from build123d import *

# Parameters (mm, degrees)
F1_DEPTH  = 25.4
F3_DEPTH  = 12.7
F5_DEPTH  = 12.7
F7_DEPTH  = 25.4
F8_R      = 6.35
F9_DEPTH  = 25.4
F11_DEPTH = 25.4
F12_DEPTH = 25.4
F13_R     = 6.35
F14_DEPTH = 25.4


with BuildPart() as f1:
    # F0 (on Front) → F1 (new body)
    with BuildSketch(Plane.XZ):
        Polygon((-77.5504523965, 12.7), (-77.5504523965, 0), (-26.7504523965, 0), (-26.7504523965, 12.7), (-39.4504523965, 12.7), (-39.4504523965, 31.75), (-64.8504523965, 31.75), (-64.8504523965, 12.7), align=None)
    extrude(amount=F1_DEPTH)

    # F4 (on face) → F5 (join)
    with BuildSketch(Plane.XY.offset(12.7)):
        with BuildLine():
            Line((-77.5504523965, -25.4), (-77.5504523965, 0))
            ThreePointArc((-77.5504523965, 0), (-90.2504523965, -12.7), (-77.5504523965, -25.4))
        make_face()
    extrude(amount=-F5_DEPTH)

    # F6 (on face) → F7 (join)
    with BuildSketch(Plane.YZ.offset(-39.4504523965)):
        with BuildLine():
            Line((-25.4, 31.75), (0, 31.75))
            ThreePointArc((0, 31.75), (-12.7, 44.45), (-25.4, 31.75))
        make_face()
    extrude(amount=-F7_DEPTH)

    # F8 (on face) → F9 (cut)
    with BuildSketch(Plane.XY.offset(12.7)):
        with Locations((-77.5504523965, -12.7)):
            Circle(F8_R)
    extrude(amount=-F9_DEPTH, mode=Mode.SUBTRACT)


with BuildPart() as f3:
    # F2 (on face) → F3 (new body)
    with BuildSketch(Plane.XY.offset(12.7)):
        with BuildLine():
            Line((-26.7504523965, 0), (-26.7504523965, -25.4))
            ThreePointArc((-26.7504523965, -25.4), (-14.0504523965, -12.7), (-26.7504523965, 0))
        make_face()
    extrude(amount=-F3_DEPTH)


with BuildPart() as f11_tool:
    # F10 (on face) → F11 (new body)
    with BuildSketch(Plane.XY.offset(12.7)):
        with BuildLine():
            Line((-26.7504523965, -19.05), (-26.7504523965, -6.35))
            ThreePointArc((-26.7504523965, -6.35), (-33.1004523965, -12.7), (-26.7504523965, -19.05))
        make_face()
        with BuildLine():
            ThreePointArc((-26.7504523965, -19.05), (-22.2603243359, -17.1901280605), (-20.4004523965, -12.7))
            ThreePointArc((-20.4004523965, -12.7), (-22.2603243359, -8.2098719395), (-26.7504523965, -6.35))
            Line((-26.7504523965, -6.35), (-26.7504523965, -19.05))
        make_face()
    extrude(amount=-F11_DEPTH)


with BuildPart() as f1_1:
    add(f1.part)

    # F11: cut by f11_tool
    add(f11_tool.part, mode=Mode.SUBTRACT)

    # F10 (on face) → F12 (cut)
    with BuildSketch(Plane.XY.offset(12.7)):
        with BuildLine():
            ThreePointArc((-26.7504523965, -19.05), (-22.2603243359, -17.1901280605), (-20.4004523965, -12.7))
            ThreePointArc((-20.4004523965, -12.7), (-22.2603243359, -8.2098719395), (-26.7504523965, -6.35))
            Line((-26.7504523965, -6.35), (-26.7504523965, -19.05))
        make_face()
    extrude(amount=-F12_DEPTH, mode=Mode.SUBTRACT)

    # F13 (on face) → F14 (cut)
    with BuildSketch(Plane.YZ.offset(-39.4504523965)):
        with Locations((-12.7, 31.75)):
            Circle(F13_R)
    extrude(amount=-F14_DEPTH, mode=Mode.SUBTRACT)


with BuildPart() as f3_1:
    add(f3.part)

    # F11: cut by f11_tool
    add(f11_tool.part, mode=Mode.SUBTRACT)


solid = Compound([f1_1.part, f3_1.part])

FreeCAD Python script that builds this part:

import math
import FreeCAD as App
import Part
import Sketcher
Q = App.Units.Quantity

doc = App.newDocument("Part")
body = doc.addObject("PartDesign::Body", "Body")

# Sketch on XZ plane
sketch1 = body.newObject("Sketcher::SketchObject", "Sketch")
sketch1.AttachmentSupport = (doc.getObject("XZ_Plane"), [""])
sketch1.MapMode = "FlatFace"
sketch1.addGeometry([
    Part.LineSegment(App.Vector(-77.550452, 12.7, 0), App.Vector(-77.550452, 0, 0)),  # 0
    Part.LineSegment(App.Vector(-77.550452, 0, 0), App.Vector(-26.750452, 0, 0)),  # 1
    Part.LineSegment(App.Vector(-26.750452, 0, 0), App.Vector(-26.750452, 12.7, 0)),  # 2
    Part.LineSegment(App.Vector(-26.750452, 12.7, 0), App.Vector(-39.450452, 12.7, 0)),  # 3
    Part.LineSegment(App.Vector(-39.450452, 12.7, 0), App.Vector(-39.450452, 31.75, 0)),  # 4
    Part.LineSegment(App.Vector(-39.450452, 31.75, 0), App.Vector(-64.850452, 31.75, 0)),  # 5
    Part.LineSegment(App.Vector(-64.850452, 31.75, 0), App.Vector(-64.850452, 12.7, 0)),  # 6
    Part.LineSegment(App.Vector(-64.850452, 12.7, 0), App.Vector(-77.550452, 12.7, 0)),  # 7
], False)
sketch1.addConstraint([
    Sketcher.Constraint("Coincident", 0, 2, 1, 1),
    Sketcher.Constraint("Coincident", 1, 2, 2, 1),
    Sketcher.Constraint("Coincident", 2, 2, 3, 1),
    Sketcher.Constraint("Coincident", 3, 2, 4, 1),
    Sketcher.Constraint("Coincident", 4, 2, 5, 1),
    Sketcher.Constraint("Coincident", 5, 2, 6, 1),
    Sketcher.Constraint("Coincident", 6, 2, 7, 1),
    Sketcher.Constraint("Coincident", 7, 2, 0, 1),
    Sketcher.Constraint("Vertical", 0),
    Sketcher.Constraint("Horizontal", 1),
    Sketcher.Constraint("Vertical", 2),
    Sketcher.Constraint("Horizontal", 3),
    Sketcher.Constraint("Vertical", 4),
    Sketcher.Constraint("Horizontal", 5),
    Sketcher.Constraint("Vertical", 6),
    Sketcher.Constraint("Horizontal", 7),
    Sketcher.Constraint("PointOnObject", 0, 2, -1),
    Sketcher.Constraint("Horizontal", 3, 2, 6, 2),
    Sketcher.Constraint("Equal", 3, 7),
    Sketcher.Constraint("Equal", 7, 0),
    Sketcher.Constraint("DistanceX", 1, 1, 1, 2, Q("2 in")),
    Sketcher.Constraint("DistanceX", 5, 2, 5, 1, Q("1 in")),
    Sketcher.Constraint("DistanceY", 4, 1, 4, 2, Q("0.75 in")),
    Sketcher.Constraint("DistanceX", 0, 2, -1, 1, Q("77.550452 mm")),
])
pad1 = body.newObject("PartDesign::Pad", "Pad")
pad1.Profile = sketch1
pad1.Length = Q("1 in")

# Sketch on XY plane
sketch2 = body.newObject("Sketcher::SketchObject", "Sketch001")
sketch2.AttachmentSupport = (doc.getObject("XY_Plane"), [""])
sketch2.MapMode = "FlatFace"
sketch2.AttachmentOffset = App.Placement(App.Vector(0, 0, 0.5 * 25.4), App.Rotation())
sketch2.addGeometry([
    Part.LineSegment(App.Vector(-77.550452, -25.4, 0), App.Vector(-77.550452, 0, 0)),
    Part.ArcOfCircle(Part.Circle(App.Vector(-77.550452, -12.7, 0), App.Vector(0, 0, 1), 12.7), math.radians(90), math.radians(270)),
], False)
sketch2.addConstraint([
    Sketcher.Constraint("Coincident", 0, 1, 1, 2),
    Sketcher.Constraint("Coincident", 1, 1, 0, 2),
    Sketcher.Constraint("Vertical", 0),
    Sketcher.Constraint("PointOnObject", 1, 1, -1),
    Sketcher.Constraint("Vertical", 1, 3, 0, 1),
    Sketcher.Constraint("Radius", 1, Q("0.5 in")),
    Sketcher.Constraint("DistanceX", 1, 3, -1, 1, Q("77.550452 mm")),
])
pad2 = body.newObject("PartDesign::Pad", "Pad001")
pad2.Profile = sketch2
pad2.Length = Q("0.5 in")
pad2.Reversed = True

# Sketch on YZ plane
sketch3 = body.newObject("Sketcher::SketchObject", "Sketch002")
sketch3.AttachmentSupport = (doc.getObject("YZ_Plane"), [""])
sketch3.MapMode = "FlatFace"
sketch3.AttachmentOffset = App.Placement(App.Vector(0, 0, -39.450452), App.Rotation())
sketch3.addGeometry([
    Part.LineSegment(App.Vector(-25.4, 31.75, 0), App.Vector(0, 31.75, 0)),
    Part.ArcOfCircle(Part.Circle(App.Vector(-12.7, 31.75, 0), App.Vector(0, 0, 1), 12.7), math.radians(0), math.radians(180)),
], False)
sketch3.addConstraint([
    Sketcher.Constraint("Coincident", 0, 1, 1, 2),
    Sketcher.Constraint("Coincident", 1, 1, 0, 2),
    Sketcher.Constraint("Horizontal", 0),
    Sketcher.Constraint("PointOnObject", 1, 1, -2),
    Sketcher.Constraint("Horizontal", 1, 3, 0, 1),
    Sketcher.Constraint("Radius", 1, Q("0.5 in")),
    Sketcher.Constraint("DistanceY", -1, 1, 1, 3, Q("1.25 in")),
])
pad3 = body.newObject("PartDesign::Pad", "Pad002")
pad3.Profile = sketch3
pad3.Length = Q("1 in")
pad3.Reversed = True

# Sketch on XY plane
sketch4 = body.newObject("Sketcher::SketchObject", "Sketch003")
sketch4.AttachmentSupport = (doc.getObject("XY_Plane"), [""])
sketch4.MapMode = "FlatFace"
sketch4.AttachmentOffset = App.Placement(App.Vector(0, 0, 0.5 * 25.4), App.Rotation())
sketch4.addGeometry(Part.Circle(App.Vector(-77.550452, -12.7, 0), App.Vector(0, 0, 1), 6.35), False)
sketch4.addConstraint([
    Sketcher.Constraint("Diameter", 0, Q("0.5 in")),
    Sketcher.Constraint("DistanceY", 0, 3, -1, 1, Q("0.5 in")),
    Sketcher.Constraint("DistanceX", 0, 3, -1, 1, Q("77.550452 mm")),
])
pocket1 = body.newObject("PartDesign::Pocket", "Pocket")
pocket1.Profile = sketch4
pocket1.Length = Q("1 in")
body2 = doc.addObject("PartDesign::Body", "Body001")

# Sketch on XY plane
sketch5 = body2.newObject("Sketcher::SketchObject", "Sketch004")
sketch5.AttachmentSupport = (doc.getObject("XY_Plane001"), [""])
sketch5.MapMode = "FlatFace"
sketch5.AttachmentOffset = App.Placement(App.Vector(0, 0, 0.5 * 25.4), App.Rotation())
sketch5.addGeometry([
    Part.LineSegment(App.Vector(-26.750452, 0, 0), App.Vector(-26.750452, -25.4, 0)),
    Part.ArcOfCircle(Part.Circle(App.Vector(-26.750452, -12.7, 0), App.Vector(0, 0, 1), 12.7), math.radians(-90), math.radians(90)),
], False)
sketch5.addConstraint([
    Sketcher.Constraint("Coincident", 0, 1, 1, 2),
    Sketcher.Constraint("Coincident", 1, 1, 0, 2),
    Sketcher.Constraint("Vertical", 0),
    Sketcher.Constraint("PointOnObject", 0, 1, -1),
    Sketcher.Constraint("Vertical", 1, 3, 0, 1),
    Sketcher.Constraint("Radius", 1, Q("0.5 in")),
    Sketcher.Constraint("DistanceX", 1, 3, -1, 1, Q("26.750452 mm")),
])
pad4 = body2.newObject("PartDesign::Pad", "Pad003")
pad4.Profile = sketch5
pad4.Length = Q("0.5 in")
pad4.Reversed = True
body3 = doc.addObject("PartDesign::Body", "Body002")

# Sketch on XY plane
sketch6 = body3.newObject("Sketcher::SketchObject", "Sketch005")
sketch6.AttachmentSupport = (doc.getObject("XY_Plane002"), [""])
sketch6.MapMode = "FlatFace"
sketch6.AttachmentOffset = App.Placement(App.Vector(0, 0, 0.5 * 25.4), App.Rotation())
sketch6.addGeometry([
    Part.ArcOfCircle(Part.Circle(App.Vector(-26.750452, -12.7, 0), App.Vector(0, 0, 1), 6.35), math.radians(90), math.radians(270)),
    Part.ArcOfCircle(Part.Circle(App.Vector(-26.750452, -12.7, 0), App.Vector(0, 0, 1), 6.35), math.radians(-90), math.radians(0)),
    Part.ArcOfCircle(Part.Circle(App.Vector(-26.750452, -12.7, 0), App.Vector(0, 0, 1), 6.35), math.radians(0), math.radians(90)),
], False)
sketch6.addConstraint([
    Sketcher.Constraint("Tangent", 0, 2, 1, 1),
    Sketcher.Constraint("Tangent", 1, 2, 2, 1),
    Sketcher.Constraint("Tangent", 2, 2, 0, 1),
    Sketcher.Constraint("Horizontal", 2, 3, 1, 2),
    Sketcher.Constraint("Vertical", 2, 3, 0, 2),
    Sketcher.Constraint("Vertical", 0, 2, 2, 2),
    Sketcher.Constraint("Radius", 0, Q("0.25 in")),
    Sketcher.Constraint("DistanceY", 0, 3, -1, 1, Q("0.5 in")),
    Sketcher.Constraint("DistanceX", 0, 3, -1, 1, Q("26.750452 mm")),
])
pad5 = body3.newObject("PartDesign::Pad", "Pad004")
pad5.Profile = sketch6
pad5.Length = Q("1 in")
pad5.Reversed = True
doc.recompute()

body4 = doc.addObject("PartDesign::Body", "Body003")
body4.BaseFeature = body3
boolean = body.newObject("PartDesign::Boolean", "Boolean")
boolean.Type = "Cut"
boolean.addObjects([body4])
doc.recompute()

# Sketch on XY plane
sketch7 = body.newObject("Sketcher::SketchObject", "Sketch006")
sketch7.AttachmentSupport = (doc.getObject("XY_Plane"), [""])
sketch7.MapMode = "FlatFace"
sketch7.AttachmentOffset = App.Placement(App.Vector(0, 0, 0.5 * 25.4), App.Rotation())
sketch7.addGeometry([
    Part.ArcOfCircle(Part.Circle(App.Vector(-26.750452, -12.7, 0), App.Vector(0, 0, 1), 6.35), math.radians(-90), math.radians(0)),
    Part.ArcOfCircle(Part.Circle(App.Vector(-26.750452, -12.7, 0), App.Vector(0, 0, 1), 6.35), math.radians(0), math.radians(90)),
    Part.LineSegment(App.Vector(-26.750452, -6.35, 0), App.Vector(-26.750452, -19.05, 0)),
], False)
sketch7.addConstraint([
    Sketcher.Constraint("Tangent", 0, 2, 1, 1),
    Sketcher.Constraint("Coincident", 1, 2, 2, 1),
    Sketcher.Constraint("Coincident", 2, 2, 0, 1),
    Sketcher.Constraint("Vertical", 2),
    Sketcher.Constraint("Equal", 0, 1),
    Sketcher.Constraint("Horizontal", 1, 3, 0, 2),
    Sketcher.Constraint("Vertical", 0, 3, 1, 2),
    Sketcher.Constraint("Radius", 0, Q("0.25 in")),
    Sketcher.Constraint("DistanceY", 0, 3, -1, 1, Q("0.5 in")),
    Sketcher.Constraint("DistanceX", 0, 3, -1, 1, Q("26.750452 mm")),
])
pocket2 = body.newObject("PartDesign::Pocket", "Pocket001")
pocket2.Profile = sketch7
pocket2.Length = Q("1 in")

# Sketch on YZ plane
sketch8 = body.newObject("Sketcher::SketchObject", "Sketch007")
sketch8.AttachmentSupport = (doc.getObject("YZ_Plane"), [""])
sketch8.MapMode = "FlatFace"
sketch8.AttachmentOffset = App.Placement(App.Vector(0, 0, -39.450452), App.Rotation())
sketch8.addGeometry(Part.Circle(App.Vector(-12.7, 31.75, 0), App.Vector(0, 0, 1), 6.35), False)
sketch8.addConstraint([
    Sketcher.Constraint("Diameter", 0, Q("0.5 in")),
    Sketcher.Constraint("DistanceX", 0, 3, -1, 1, Q("0.5 in")),
    Sketcher.Constraint("DistanceY", -1, 1, 0, 3, Q("1.25 in")),
])
pocket3 = body.newObject("PartDesign::Pocket", "Pocket002")
pocket3.Profile = sketch8
pocket3.Length = Q("1 in")
doc.recompute()

boolean2 = body2.newObject("PartDesign::Boolean", "Boolean001")
boolean2.Type = "Cut"
boolean2.addObjects([body3])

doc.recompute()
